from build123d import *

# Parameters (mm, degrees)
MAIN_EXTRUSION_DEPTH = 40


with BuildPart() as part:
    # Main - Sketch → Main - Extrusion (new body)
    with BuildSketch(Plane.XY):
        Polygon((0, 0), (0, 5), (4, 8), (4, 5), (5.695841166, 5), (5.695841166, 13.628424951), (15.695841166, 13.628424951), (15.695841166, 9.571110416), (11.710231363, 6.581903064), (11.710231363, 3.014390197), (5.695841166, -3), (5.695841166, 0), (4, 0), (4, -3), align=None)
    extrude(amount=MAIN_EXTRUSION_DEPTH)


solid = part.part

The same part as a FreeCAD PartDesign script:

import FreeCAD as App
import Part
import Sketcher
Q = App.Units.Quantity

doc = App.newDocument("Part")
params = doc.addObject("Spreadsheet::Sheet", "Params")
for row, (alias, value) in enumerate([
    ("sketch1_width", "10 mm"),
    ("sketch1_height", "5 mm"),
    ("sketch1_height2", "3 mm"),
    ("sketch1_length", "5 mm"),
    ("pad1_length", "40 mm"),
], start=1):
    params.set(f"A{row}", alias)
    params.set(f"B{row}", "=" + value)
    params.setAlias(f"B{row}", alias)

body = doc.addObject("PartDesign::Body", "Body")

sketch1 = body.newObject("Sketcher::SketchObject", "Sketch")
sketch1.AttachmentSupport = (doc.getObject("XY_Plane"), [""])
sketch1.MapMode = "FlatFace"
sketch1.addGeometry([
    Part.LineSegment(App.Vector(0, 5, 0), App.Vector(0, 0, 0)),
    Part.LineSegment(App.Vector(0, 0, 0), App.Vector(4, -3, 0)),
    Part.LineSegment(App.Vector(4, -3, 0), App.Vector(4, 0, 0)),
    Part.LineSegment(App.Vector(4, 0, 0), App.Vector(5.7, 0, 0)),
    Part.LineSegment(App.Vector(5.7, 0, 0), App.Vector(5.7, -3, 0)),
    Part.LineSegment(App.Vector(5.7, -3, 0), App.Vector(11.7, 3, 0)),
    Part.LineSegment(App.Vector(11.7, 3, 0), App.Vector(11.7, 6.6, 0)),
    Part.LineSegment(App.Vector(11.7, 6.6, 0), App.Vector(15.7, 9.6, 0)),
    Part.LineSegment(App.Vector(15.7, 9.6, 0), App.Vector(15.7, 13.6, 0)),
    Part.LineSegment(App.Vector(15.7, 13.6, 0), App.Vector(5.7, 13.6, 0)),
    Part.LineSegment(App.Vector(5.7, 13.6, 0), App.Vector(5.7, 5, 0)),
    Part.LineSegment(App.Vector(5.7, 5, 0), App.Vector(4, 5, 0)),
    Part.LineSegment(App.Vector(4, 5, 0), App.Vector(4, 8, 0)),
    Part.LineSegment(App.Vector(4, 8, 0), App.Vector(0, 5, 0)),
], False)
sketch1.addConstraint([
    Sketcher.Constraint("Coincident", 0, 2, 1, 1),
    Sketcher.Constraint("Coincident", 1, 2, 2, 1),
    Sketcher.Constraint("Coincident", 2, 2, 3, 1),
    Sketcher.Constraint("Coincident", 3, 2, 4, 1),
    Sketcher.Constraint("Coincident", 4, 2, 5, 1),
    Sketcher.Constraint("Coincident", 5, 2, 6, 1),
    Sketcher.Constraint("Coincident", 6, 2, 7, 1),
    Sketcher.Constraint("Coincident", 7, 2, 8, 1),
    Sketcher.Constraint("Coincident", 8, 2, 9, 1),
    Sketcher.Constraint("Coincident", 9, 2, 10, 1),
    Sketcher.Constraint("Coincident", 10, 2, 11, 1),
    Sketcher.Constraint("Coincident", 11, 2, 12, 1),
    Sketcher.Constraint("Coincident", 12, 2, 13, 1),
    Sketcher.Constraint("Coincident", 13, 2, 0, 1),
    Sketcher.Constraint("Vertical", 0),
    Sketcher.Constraint("Vertical", 2),
    Sketcher.Constraint("Horizontal", 3),
    Sketcher.Constraint("Vertical", 4),
    Sketcher.Constraint("Vertical", 6),
    Sketcher.Constraint("Vertical", 8),
    Sketcher.Constraint("Horizontal", 9),
    Sketcher.Constraint("Vertical", 10),
    Sketcher.Constraint("Horizontal", 11),
    Sketcher.Constraint("Vertical", 12),
    Sketcher.Constraint("Coincident", 0, 2, -1, 1),
    Sketcher.Constraint("PointOnObject", 2, 2, -1),
    Sketcher.Constraint("Parallel", 7, 13),
    Sketcher.Constraint("Horizontal", 1, 2, 4, 2),
    Sketcher.Constraint("Horizontal", 11, 2, 13, 2),
    Sketcher.Constraint("Vertical", 4, 2, 9, 2),
    Sketcher.Constraint("Vertical", 2, 2, 11, 2),
    Sketcher.Constraint("Equal", 4, 12),
    Sketcher.Constraint("DistanceX", 9, 2, 9, 1, Q("10 mm")),
    Sketcher.Constraint("DistanceY", 0, 2, 0, 1, Q("5 mm")),
    Sketcher.Constraint("DistanceY", 2, 1, 2, 2, Q("3 mm")),
    Sketcher.Constraint("Angle", 5, Q("45 deg")),
    Sketcher.Constraint("Distance", 1, Q("5 mm")),
    Sketcher.Constraint("DistanceX", 3, 1, 3, 2, Q("1.695841 mm")),
    Sketcher.Constraint("DistanceY", 6, 1, 6, 2, Q("3.567513 mm")),
    Sketcher.Constraint("DistanceY", 8, 1, 8, 2, Q("4.057315 mm")),
    Sketcher.Constraint("DistanceY", 10, 2, 10, 1, Q("8.628425 mm")),
])
sketch1.setExpression("Constraints[32]", "Params.sketch1_width")
sketch1.setExpression("Constraints[33]", "Params.sketch1_height")
sketch1.setExpression("Constraints[34]", "Params.sketch1_height2")
sketch1.setExpression("Constraints[36]", "Params.sketch1_length")
pad1 = body.newObject("PartDesign::Pad", "Pad")
pad1.Profile = sketch1
pad1.setExpression("Length", "Params.pad1_length")

doc.recompute()
